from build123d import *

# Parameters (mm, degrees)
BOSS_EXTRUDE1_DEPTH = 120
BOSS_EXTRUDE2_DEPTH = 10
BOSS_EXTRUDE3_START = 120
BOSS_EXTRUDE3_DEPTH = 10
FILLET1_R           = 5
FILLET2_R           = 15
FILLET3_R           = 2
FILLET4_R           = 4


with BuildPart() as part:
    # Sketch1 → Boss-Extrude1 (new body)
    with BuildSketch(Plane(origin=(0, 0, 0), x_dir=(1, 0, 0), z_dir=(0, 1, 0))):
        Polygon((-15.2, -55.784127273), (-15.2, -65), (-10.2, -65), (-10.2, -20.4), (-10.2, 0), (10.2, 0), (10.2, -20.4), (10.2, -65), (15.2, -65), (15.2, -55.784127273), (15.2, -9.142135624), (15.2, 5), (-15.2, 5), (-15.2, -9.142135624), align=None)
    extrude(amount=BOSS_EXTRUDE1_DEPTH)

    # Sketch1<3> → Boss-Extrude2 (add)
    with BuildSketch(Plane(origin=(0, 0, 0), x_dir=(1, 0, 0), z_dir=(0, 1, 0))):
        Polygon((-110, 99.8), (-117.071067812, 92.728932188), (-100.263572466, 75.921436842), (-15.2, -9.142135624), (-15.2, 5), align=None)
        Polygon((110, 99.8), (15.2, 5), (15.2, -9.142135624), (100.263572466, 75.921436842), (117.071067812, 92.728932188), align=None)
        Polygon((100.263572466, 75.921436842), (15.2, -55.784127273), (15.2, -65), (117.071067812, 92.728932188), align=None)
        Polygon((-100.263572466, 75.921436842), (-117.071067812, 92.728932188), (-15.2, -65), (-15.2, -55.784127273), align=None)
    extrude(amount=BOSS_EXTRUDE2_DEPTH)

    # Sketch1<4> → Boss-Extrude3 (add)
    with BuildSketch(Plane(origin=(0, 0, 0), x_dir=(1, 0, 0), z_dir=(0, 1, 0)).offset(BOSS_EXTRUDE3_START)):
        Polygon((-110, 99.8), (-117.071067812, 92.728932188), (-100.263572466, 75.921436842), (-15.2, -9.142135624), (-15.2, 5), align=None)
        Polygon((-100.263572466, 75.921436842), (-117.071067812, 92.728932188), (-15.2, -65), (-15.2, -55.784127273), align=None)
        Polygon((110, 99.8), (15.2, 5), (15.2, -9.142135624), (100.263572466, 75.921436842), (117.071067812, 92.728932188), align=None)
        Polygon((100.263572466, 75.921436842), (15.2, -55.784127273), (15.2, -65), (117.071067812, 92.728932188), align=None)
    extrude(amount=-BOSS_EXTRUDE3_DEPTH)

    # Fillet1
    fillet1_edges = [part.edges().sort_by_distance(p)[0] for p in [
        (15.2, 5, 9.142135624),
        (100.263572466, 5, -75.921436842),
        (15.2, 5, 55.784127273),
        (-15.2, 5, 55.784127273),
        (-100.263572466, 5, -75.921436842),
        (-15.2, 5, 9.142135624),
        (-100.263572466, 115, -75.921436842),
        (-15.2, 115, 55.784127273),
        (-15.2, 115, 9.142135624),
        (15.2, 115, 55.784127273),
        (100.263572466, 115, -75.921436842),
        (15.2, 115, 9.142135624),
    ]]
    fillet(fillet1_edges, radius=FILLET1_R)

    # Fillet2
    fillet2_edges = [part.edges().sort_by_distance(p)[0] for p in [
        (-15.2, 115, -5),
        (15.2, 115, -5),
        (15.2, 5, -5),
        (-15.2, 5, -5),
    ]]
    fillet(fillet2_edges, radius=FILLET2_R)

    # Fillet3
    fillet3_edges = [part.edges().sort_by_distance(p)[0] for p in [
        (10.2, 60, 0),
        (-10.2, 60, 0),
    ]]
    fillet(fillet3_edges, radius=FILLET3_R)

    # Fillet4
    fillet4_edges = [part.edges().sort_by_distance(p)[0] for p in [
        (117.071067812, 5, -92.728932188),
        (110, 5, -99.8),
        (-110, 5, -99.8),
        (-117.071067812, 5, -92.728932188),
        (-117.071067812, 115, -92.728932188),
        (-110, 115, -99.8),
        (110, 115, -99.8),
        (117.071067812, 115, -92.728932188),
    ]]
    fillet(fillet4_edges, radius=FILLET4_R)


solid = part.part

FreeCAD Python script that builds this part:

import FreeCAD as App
import Part
import Sketcher
Q = App.Units.Quantity


def edges_at(feature, points):
    """Names of the edges that pass closest to the given points."""
    edges = feature.Shape.Edges
    near = lambda p: min(range(len(edges)), key=lambda i: edges[i].distToShape(Part.Vertex(*p))[0])
    return sorted({f"Edge{near(p) + 1}" for p in points})

doc = App.newDocument("Part")
body = doc.addObject("PartDesign::Body", "Body")

# Sketch on XZ plane
sketch1 = body.newObject("Sketcher::SketchObject", "Sketch")
sketch1.AttachmentSupport = (doc.getObject("XZ_Plane"), [""])
sketch1.MapMode = "FlatFace"
sketch1.addGeometry([
    Part.LineSegment(App.Vector(-15, 65, 0), App.Vector(-10, 65, 0)),  # 0
    Part.LineSegment(App.Vector(-10, 65, 0), App.Vector(-10, 0, 0)),  # 1
    Part.LineSegment(App.Vector(-10, 0, 0), App.Vector(10, 0, 0)),  # 2
    Part.LineSegment(App.Vector(10, 0, 0), App.Vector(10, 65, 0)),  # 3
    Part.LineSegment(App.Vector(10, 65, 0), App.Vector(15, 65, 0)),  # 4
    Part.LineSegment(App.Vector(15, 65, 0), App.Vector(15, -5, 0)),  # 5
    Part.LineSegment(App.Vector(15, -5, 0), App.Vector(-15, -5, 0)),  # 6
    Part.LineSegment(App.Vector(-15, -5, 0), App.Vector(-15, 65, 0)),  # 7
], False)
sketch1.addConstraint([
    Sketcher.Constraint("Coincident", 0, 2, 1, 1),
    Sketcher.Constraint("Coincident", 1, 2, 2, 1),
    Sketcher.Constraint("Coincident", 2, 2, 3, 1),
    Sketcher.Constraint("Coincident", 3, 2, 4, 1),
    Sketcher.Constraint("Coincident", 4, 2, 5, 1),
    Sketcher.Constraint("Coincident", 5, 2, 6, 1),
    Sketcher.Constraint("Coincident", 6, 2, 7, 1),
    Sketcher.Constraint("Coincident", 7, 2, 0, 1),
    Sketcher.Constraint("Horizontal", 0),
    Sketcher.Constraint("Vertical", 1),
    Sketcher.Constraint("Horizontal", 2),
    Sketcher.Constraint("Vertical", 3),
    Sketcher.Constraint("Horizontal", 4),
    Sketcher.Constraint("Vertical", 5),
    Sketcher.Constraint("Horizontal", 6),
    Sketcher.Constraint("Vertical", 7),
    Sketcher.Constraint("Symmetric", 1, 2, 2, 2, -1, 1),
    Sketcher.Constraint("Symmetric", 4, 2, 7, 2, -2),
    Sketcher.Constraint("DistanceX", 0, 1, 0, 2, Q("5 mm")),
    Sketcher.Constraint("DistanceY", 1, 2, 1, 1, Q("65 mm")),
    Sketcher.Constraint("DistanceY", 5, 2, 5, 1, Q("70 mm")),
    Sketcher.Constraint("DistanceX", 2, 1, 2, 2, Q("20.4 mm")),
])
pad1 = body.newObject("PartDesign::Pad", "Pad")
pad1.Profile = sketch1
pad1.Length = 120
pad1.Reversed = True

# Sketch on XZ plane
sketch2 = body.newObject("Sketcher::SketchObject", "Sketch001")
sketch2.AttachmentSupport = (doc.getObject("XZ_Plane"), [""])
sketch2.MapMode = "FlatFace"
sketch2.addGeometry([
    Part.LineSegment(App.Vector(-110, -100, 0), App.Vector(-117, -93, 0)),  # 0
    Part.LineSegment(App.Vector(-117, -93, 0), App.Vector(-15, 65, 0)),  # 1
    Part.LineSegment(App.Vector(-15, 65, 0), App.Vector(-15, 56, 0)),  # 2
    Part.LineSegment(App.Vector(-15, 56, 0), App.Vector(-100, -76, 0)),  # 3
    Part.LineSegment(App.Vector(-100, -76, 0), App.Vector(-15, 9, 0)),  # 4
    Part.LineSegment(App.Vector(-15, 9, 0), App.Vector(-15, -5, 0)),  # 5
    Part.LineSegment(App.Vector(-15, -5, 0), App.Vector(-110, -100, 0)),  # 6
    Part.LineSegment(App.Vector(110, -100, 0), App.Vector(15, -5, 0)),  # 7
    Part.LineSegment(App.Vector(15, -5, 0), App.Vector(15, 9, 0)),  # 8
    Part.LineSegment(App.Vector(15, 9, 0), App.Vector(100, -76, 0)),  # 9
    Part.LineSegment(App.Vector(100, -76, 0), App.Vector(15, 56, 0)),  # 10
    Part.LineSegment(App.Vector(15, 56, 0), App.Vector(15, 65, 0)),  # 11
    Part.LineSegment(App.Vector(15, 65, 0), App.Vector(117, -93, 0)),  # 12
    Part.LineSegment(App.Vector(117, -93, 0), App.Vector(110, -100, 0)),  # 13
], False)
sketch2.addConstraint([
    Sketcher.Constraint("Coincident", 0, 2, 1, 1),
    Sketcher.Constraint("Coincident", 1, 2, 2, 1),
    Sketcher.Constraint("Coincident", 2, 2, 3, 1),
    Sketcher.Constraint("Coincident", 3, 2, 4, 1),
    Sketcher.Constraint("Coincident", 4, 2, 5, 1),
    Sketcher.Constraint("Coincident", 5, 2, 6, 1),
    Sketcher.Constraint("Coincident", 6, 2, 0, 1),
    Sketcher.Constraint("Coincident", 7, 2, 8, 1),
    Sketcher.Constraint("Coincident", 8, 2, 9, 1),
    Sketcher.Constraint("Coincident", 9, 2, 10, 1),
    Sketcher.Constraint("Coincident", 10, 2, 11, 1),
    Sketcher.Constraint("Coincident", 11, 2, 12, 1),
    Sketcher.Constraint("Coincident", 12, 2, 13, 1),
    Sketcher.Constraint("Coincident", 13, 2, 7, 1),
    Sketcher.Constraint("Vertical", 2),
    Sketcher.Constraint("Vertical", 5),
    Sketcher.Constraint("Vertical", 8),
    Sketcher.Constraint("Vertical", 11),
    Sketcher.Constraint("Symmetric", 5, 2, 7, 2, -2),
    Sketcher.Constraint("Symmetric", 3, 2, 9, 2, -2),
    Sketcher.Constraint("Symmetric", 2, 2, 10, 2, -2),
    Sketcher.Constraint("Symmetric", 0, 2, 12, 2, -2),
    Sketcher.Constraint("Symmetric", 6, 2, 13, 2, -2),
    Sketcher.Constraint("Parallel", 1, 3),
    Sketcher.Constraint("Perpendicular", 0, 4),
    Sketcher.Constraint("Parallel", 4, 6),
    Sketcher.Constraint("Perpendicular", 6, 7),
    Sketcher.Constraint("Parallel", 7, 9),
    Sketcher.Constraint("Parallel", 10, 12),
    Sketcher.Constraint("Vertical", 2, 2, 4, 2),
    Sketcher.Constraint("Distance", 0, Q("10 mm")),
    Sketcher.Constraint("DistanceY", -1, 1, 1, 2, Q("65 mm")),
    Sketcher.Constraint("DistanceY", 5, 2, -1, 1, Q("5 mm")),
    Sketcher.Constraint("DistanceX", 6, 2, -1, 1, Q("110 mm")),
    Sketcher.Constraint("DistanceX", 1, 2, -1, 1, Q("15.2 mm")),
    Sketcher.Constraint("Distance", 3, Q("156.787012 mm")),
    Sketcher.Constraint("DistanceY", 2, 2, 2, 1, Q("9.215873 mm")),
])
pad2 = body.newObject("PartDesign::Pad", "Pad001")
pad2.Profile = sketch2
pad2.Length = 10
pad2.Reversed = True

# Sketch on XZ plane
sketch3 = body.newObject("Sketcher::SketchObject", "Sketch002")
sketch3.AttachmentSupport = (doc.getObject("XZ_Plane"), [""])
sketch3.MapMode = "FlatFace"
sketch3.AttachmentOffset = App.Placement(App.Vector(0, 0, -120), App.Rotation())
sketch3.addGeometry([
    Part.LineSegment(App.Vector(-110, -100, 0), App.Vector(-117, -93, 0)),  # 0
    Part.LineSegment(App.Vector(-117, -93, 0), App.Vector(-15, 65, 0)),  # 1
    Part.LineSegment(App.Vector(-15, 65, 0), App.Vector(-15, 56, 0)),  # 2
    Part.LineSegment(App.Vector(-15, 56, 0), App.Vector(-100, -76, 0)),  # 3
    Part.LineSegment(App.Vector(-100, -76, 0), App.Vector(-15, 9, 0)),  # 4
    Part.LineSegment(App.Vector(-15, 9, 0), App.Vector(-15, -5, 0)),  # 5
    Part.LineSegment(App.Vector(-15, -5, 0), App.Vector(-110, -100, 0)),  # 6
    Part.LineSegment(App.Vector(110, -100, 0), App.Vector(15, -5, 0)),  # 7
    Part.LineSegment(App.Vector(15, -5, 0), App.Vector(15, 9, 0)),  # 8
    Part.LineSegment(App.Vector(15, 9, 0), App.Vector(100, -76, 0)),  # 9
    Part.LineSegment(App.Vector(100, -76, 0), App.Vector(15, 56, 0)),  # 10
    Part.LineSegment(App.Vector(15, 56, 0), App.Vector(15, 65, 0)),  # 11
    Part.LineSegment(App.Vector(15, 65, 0), App.Vector(117, -93, 0)),  # 12
    Part.LineSegment(App.Vector(117, -93, 0), App.Vector(110, -100, 0)),  # 13
], False)
sketch3.addConstraint([
    Sketcher.Constraint("Coincident", 0, 2, 1, 1),
    Sketcher.Constraint("Coincident", 1, 2, 2, 1),
    Sketcher.Constraint("Coincident", 2, 2, 3, 1),
    Sketcher.Constraint("Coincident", 3, 2, 4, 1),
    Sketcher.Constraint("Coincident", 4, 2, 5, 1),
    Sketcher.Constraint("Coincident", 5, 2, 6, 1),
    Sketcher.Constraint("Coincident", 6, 2, 0, 1),
    Sketcher.Constraint("Coincident", 7, 2, 8, 1),
    Sketcher.Constraint("Coincident", 8, 2, 9, 1),
    Sketcher.Constraint("Coincident", 9, 2, 10, 1),
    Sketcher.Constraint("Coincident", 10, 2, 11, 1),
    Sketcher.Constraint("Coincident", 11, 2, 12, 1),
    Sketcher.Constraint("Coincident", 12, 2, 13, 1),
    Sketcher.Constraint("Coincident", 13, 2, 7, 1),
    Sketcher.Constraint("Vertical", 2),
    Sketcher.Constraint("Vertical", 5),
    Sketcher.Constraint("Vertical", 8),
    Sketcher.Constraint("Vertical", 11),
    Sketcher.Constraint("Symmetric", 5, 2, 7, 2, -2),
    Sketcher.Constraint("Symmetric", 3, 2, 9, 2, -2),
    Sketcher.Constraint("Symmetric", 2, 2, 10, 2, -2),
    Sketcher.Constraint("Symmetric", 0, 2, 12, 2, -2),
    Sketcher.Constraint("Symmetric", 6, 2, 13, 2, -2),
    Sketcher.Constraint("Parallel", 1, 3),
    Sketcher.Constraint("Perpendicular", 0, 4),
    Sketcher.Constraint("Parallel", 4, 6),
    Sketcher.Constraint("Perpendicular", 6, 7),
    Sketcher.Constraint("Parallel", 7, 9),
    Sketcher.Constraint("Parallel", 10, 12),
    Sketcher.Constraint("Vertical", 2, 2, 4, 2),
    Sketcher.Constraint("Distance", 0, Q("10 mm")),
    Sketcher.Constraint("DistanceY", -1, 1, 1, 2, Q("65 mm")),
    Sketcher.Constraint("DistanceY", 5, 2, -1, 1, Q("5 mm")),
    Sketcher.Constraint("DistanceX", 6, 2, -1, 1, Q("110 mm")),
    Sketcher.Constraint("DistanceX", 1, 2, -1, 1, Q("15.2 mm")),
    Sketcher.Constraint("Distance", 3, Q("156.787012 mm")),
    Sketcher.Constraint("DistanceY", 2, 2, 2, 1, Q("9.215873 mm")),
])
pad3 = body.newObject("PartDesign::Pad", "Pad002")
pad3.Profile = sketch3
pad3.Length = 10
doc.recompute()

fillet = body.newObject("PartDesign::Fillet", "Fillet")
fillet.Base = (pad3, edges_at(pad3, [
    (15.2, 5, 9.142),
    (100.264, 5, -75.921),
    (15.2, 5, 55.784),
    (-15.2, 5, 55.784),
    (-100.264, 5, -75.921),
    (-15.2, 5, 9.142),
    (-100.264, 115, -75.921),
    (-15.2, 115, 55.784),
    (-15.2, 115, 9.142),
    (15.2, 115, 55.784),
    (100.264, 115, -75.921),
    (15.2, 115, 9.142),
]))
fillet.Radius = 5
doc.recompute()

fillet2 = body.newObject("PartDesign::Fillet", "Fillet001")
fillet2.Base = (fillet, edges_at(fillet, [
    (-15.2, 115, -5),
    (15.2, 115, -5),
    (15.2, 5, -5),
    (-15.2, 5, -5),
]))
fillet2.Radius = 15
doc.recompute()

fillet3 = body.newObject("PartDesign::Fillet", "Fillet002")
fillet3.Base = (fillet2, edges_at(fillet2, [(10.2, 60, 0), (-10.2, 60, 0)]))
fillet3.Radius = 2
doc.recompute()

fillet4 = body.newObject("PartDesign::Fillet", "Fillet003")
fillet4.Base = (fillet3, edges_at(fillet3, [
    (117.071, 5, -92.729),
    (110, 5, -99.8),
    (-110, 5, -99.8),
    (-117.071, 5, -92.729),
    (-117.071, 115, -92.729),
    (-110, 115, -99.8),
    (110, 115, -99.8),
    (117.071, 115, -92.729),
]))
fillet4.Radius = 4

doc.recompute()
